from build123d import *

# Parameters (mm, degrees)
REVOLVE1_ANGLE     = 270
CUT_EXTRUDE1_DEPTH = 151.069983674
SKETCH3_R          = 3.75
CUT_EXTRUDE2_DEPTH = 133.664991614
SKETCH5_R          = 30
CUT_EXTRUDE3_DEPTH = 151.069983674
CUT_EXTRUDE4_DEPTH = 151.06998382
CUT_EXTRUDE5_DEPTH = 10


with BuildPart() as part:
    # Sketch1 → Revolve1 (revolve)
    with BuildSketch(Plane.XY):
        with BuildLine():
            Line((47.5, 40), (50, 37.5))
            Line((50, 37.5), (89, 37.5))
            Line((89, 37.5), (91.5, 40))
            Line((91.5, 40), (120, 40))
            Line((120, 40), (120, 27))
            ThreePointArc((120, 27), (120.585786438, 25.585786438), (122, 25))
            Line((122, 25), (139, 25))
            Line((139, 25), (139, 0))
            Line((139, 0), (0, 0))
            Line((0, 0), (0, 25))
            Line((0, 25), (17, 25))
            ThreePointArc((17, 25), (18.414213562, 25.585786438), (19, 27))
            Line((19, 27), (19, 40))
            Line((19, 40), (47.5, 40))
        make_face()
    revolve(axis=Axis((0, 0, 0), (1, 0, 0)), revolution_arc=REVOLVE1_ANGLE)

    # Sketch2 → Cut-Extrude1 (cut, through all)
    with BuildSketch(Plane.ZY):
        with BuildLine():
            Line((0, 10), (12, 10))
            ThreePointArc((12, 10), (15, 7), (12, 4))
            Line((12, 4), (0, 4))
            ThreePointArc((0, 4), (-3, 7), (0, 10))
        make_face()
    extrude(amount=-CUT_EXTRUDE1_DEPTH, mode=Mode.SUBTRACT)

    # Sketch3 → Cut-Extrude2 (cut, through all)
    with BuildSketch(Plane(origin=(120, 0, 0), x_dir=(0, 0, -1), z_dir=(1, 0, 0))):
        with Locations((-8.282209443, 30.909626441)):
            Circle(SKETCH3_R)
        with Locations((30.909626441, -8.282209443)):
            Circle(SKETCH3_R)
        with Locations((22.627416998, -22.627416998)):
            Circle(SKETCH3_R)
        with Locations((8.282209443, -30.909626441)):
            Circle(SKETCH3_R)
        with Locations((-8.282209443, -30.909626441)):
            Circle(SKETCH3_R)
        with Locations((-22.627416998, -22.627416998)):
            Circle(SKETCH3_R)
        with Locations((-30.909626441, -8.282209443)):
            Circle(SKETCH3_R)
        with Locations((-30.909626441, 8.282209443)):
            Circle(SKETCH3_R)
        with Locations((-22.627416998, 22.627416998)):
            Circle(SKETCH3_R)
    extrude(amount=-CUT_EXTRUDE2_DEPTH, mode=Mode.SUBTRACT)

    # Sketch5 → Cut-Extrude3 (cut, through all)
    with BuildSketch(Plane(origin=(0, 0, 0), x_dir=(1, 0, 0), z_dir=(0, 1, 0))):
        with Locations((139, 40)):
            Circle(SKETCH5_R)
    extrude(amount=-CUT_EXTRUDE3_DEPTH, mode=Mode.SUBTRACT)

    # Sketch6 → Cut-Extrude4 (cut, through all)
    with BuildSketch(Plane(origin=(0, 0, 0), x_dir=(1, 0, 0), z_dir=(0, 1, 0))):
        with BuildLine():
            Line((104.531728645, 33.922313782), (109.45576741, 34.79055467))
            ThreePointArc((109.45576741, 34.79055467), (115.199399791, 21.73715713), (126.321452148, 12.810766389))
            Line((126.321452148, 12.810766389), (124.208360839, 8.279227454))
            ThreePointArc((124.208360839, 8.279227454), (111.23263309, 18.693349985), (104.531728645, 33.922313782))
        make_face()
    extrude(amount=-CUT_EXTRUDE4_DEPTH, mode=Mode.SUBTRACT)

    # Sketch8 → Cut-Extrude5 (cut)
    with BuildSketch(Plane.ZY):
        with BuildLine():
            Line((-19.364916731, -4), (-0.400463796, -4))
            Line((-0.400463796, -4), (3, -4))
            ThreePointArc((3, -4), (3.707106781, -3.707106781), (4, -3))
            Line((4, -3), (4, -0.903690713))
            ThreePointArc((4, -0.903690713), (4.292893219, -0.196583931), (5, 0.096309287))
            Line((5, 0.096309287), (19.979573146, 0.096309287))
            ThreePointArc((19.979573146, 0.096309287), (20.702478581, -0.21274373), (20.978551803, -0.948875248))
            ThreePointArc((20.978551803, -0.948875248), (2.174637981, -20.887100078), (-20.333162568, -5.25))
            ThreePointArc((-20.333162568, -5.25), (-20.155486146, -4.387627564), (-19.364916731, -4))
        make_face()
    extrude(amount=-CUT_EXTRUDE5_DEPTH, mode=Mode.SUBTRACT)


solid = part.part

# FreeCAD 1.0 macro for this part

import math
import FreeCAD as App
import Part
import Sketcher

V = App.Vector
Q = App.Units.Quantity

doc = App.newDocument("Part")
body = doc.addObject("PartDesign::Body", "Body")

sketch1 = body.newObject("Sketcher::SketchObject", "Sketch")
sketch1.AttachmentSupport = (doc.getObject("XY_Plane"), [""])
sketch1.MapMode = "FlatFace"
sketch1.addGeometry(Part.LineSegment(V(50, 37.5, 0), V(47.5, 40, 0)), False)
sketch1.addGeometry(Part.LineSegment(V(47.5, 40, 0), V(19, 40, 0)), False)
sketch1.addGeometry(Part.LineSegment(V(19, 40, 0), V(19, 27, 0)), False)
sketch1.addGeometry(Part.ArcOfCircle(Part.Circle(V(17, 27, 0), V(0, 0, 1), 2), math.radians(-90), math.radians(0)), False)
sketch1.addGeometry(Part.LineSegment(V(17, 25, 0), V(0, 25, 0)), False)
sketch1.addGeometry(Part.LineSegment(V(0, 25, 0), V(0, 0, 0)), False)
sketch1.addGeometry(Part.LineSegment(V(0, 0, 0), V(139, 0, 0)), False)
sketch1.addGeometry(Part.LineSegment(V(139, 0, 0), V(139, 25, 0)), False)
sketch1.addGeometry(Part.LineSegment(V(139, 25, 0), V(122, 25, 0)), False)
sketch1.addGeometry(Part.ArcOfCircle(Part.Circle(V(122, 27, 0), V(0, 0, 1), 2), math.radians(-180), math.radians(-90)), False)
sketch1.addGeometry(Part.LineSegment(V(120, 27, 0), V(120, 40, 0)), False)
sketch1.addGeometry(Part.LineSegment(V(120, 40, 0), V(91.5, 40, 0)), False)
sketch1.addGeometry(Part.LineSegment(V(91.5, 40, 0), V(89, 37.5, 0)), False)
sketch1.addGeometry(Part.LineSegment(V(89, 37.5, 0), V(50, 37.5, 0)), False)
sketch1.addConstraint(Sketcher.Constraint("Coincident", 0, 2, 1, 1))
sketch1.addConstraint(Sketcher.Constraint("Coincident", 1, 2, 2, 1))
sketch1.addConstraint(Sketcher.Constraint("Tangent", 2, 2, 3, 2))
sketch1.addConstraint(Sketcher.Constraint("Tangent", 3, 1, 4, 1))
sketch1.addConstraint(Sketcher.Constraint("Coincident", 4, 2, 5, 1))
sketch1.addConstraint(Sketcher.Constraint("Coincident", 5, 2, 6, 1))
sketch1.addConstraint(Sketcher.Constraint("Coincident", 6, 2, 7, 1))
sketch1.addConstraint(Sketcher.Constraint("Coincident", 7, 2, 8, 1))
sketch1.addConstraint(Sketcher.Constraint("Tangent", 8, 2, 9, 2))
sketch1.addConstraint(Sketcher.Constraint("Tangent", 9, 1, 10, 1))
sketch1.addConstraint(Sketcher.Constraint("Coincident", 10, 2, 11, 1))
sketch1.addConstraint(Sketcher.Constraint("Coincident", 11, 2, 12, 1))
sketch1.addConstraint(Sketcher.Constraint("Coincident", 12, 2, 13, 1))
sketch1.addConstraint(Sketcher.Constraint("Coincident", 13, 2, 0, 1))
sketch1.addConstraint(Sketcher.Constraint("Horizontal", 1))
sketch1.addConstraint(Sketcher.Constraint("Vertical", 2))
sketch1.addConstraint(Sketcher.Constraint("Horizontal", 4))
sketch1.addConstraint(Sketcher.Constraint("Vertical", 5))
sketch1.addConstraint(Sketcher.Constraint("Horizontal", 6))
sketch1.addConstraint(Sketcher.Constraint("Vertical", 7))
sketch1.addConstraint(Sketcher.Constraint("Horizontal", 8))
sketch1.addConstraint(Sketcher.Constraint("Vertical", 10))
sketch1.addConstraint(Sketcher.Constraint("Horizontal", 11))
sketch1.addConstraint(Sketcher.Constraint("Horizontal", 13))
sketch1.addConstraint(Sketcher.Constraint("Coincident", 5, 2, -1, 1))
sketch1.addConstraint(Sketcher.Constraint("Equal", 3, 9))
sketch1.addConstraint(Sketcher.Constraint("Perpendicular", 0, 12))
sketch1.addConstraint(Sketcher.Constraint("Horizontal", 3, 3, 9, 3))
sketch1.addConstraint(Sketcher.Constraint("Horizontal", 1, 2, 10, 2))
sketch1.addConstraint(Sketcher.Constraint("Equal", 4, 8))
sketch1.addConstraint(Sketcher.Constraint("Equal", 1, 11))
sketch1.addConstraint(Sketcher.Constraint("Equal", 0, 12))
sketch1.addConstraint(Sketcher.Constraint("Radius", 3, Q("2 mm")))
sketch1.addConstraint(Sketcher.Constraint("DistanceX", 4, 2, 4, 1, Q("17 mm")))
sketch1.addConstraint(Sketcher.Constraint("DistanceX", 6, 1, 6, 2, Q("139 mm")))
sketch1.addConstraint(Sketcher.Constraint("DistanceX", 13, 2, 13, 1, Q("39 mm")))
sketch1.addConstraint(Sketcher.Constraint("DistanceY", 2, 2, 2, 1, Q("13 mm")))
sketch1.addConstraint(Sketcher.Constraint("DistanceY", 5, 2, 5, 1, Q("25 mm")))
sketch1.addConstraint(Sketcher.Constraint("DistanceX", 1, 2, 1, 1, Q("28.5 mm")))
revolution = body.newObject("PartDesign::Revolution", "Revolution")
revolution.Profile = sketch1
revolution.ReferenceAxis = (sketch1, ["H_Axis"])
revolution.Angle = 270

sketch2 = body.newObject("Sketcher::SketchObject", "Sketch001")
sketch2.AttachmentSupport = (doc.getObject("YZ_Plane"), [""])
sketch2.MapMode = "FlatFace"
sketch2.addGeometry(Part.LineSegment(V(10, 12, 0), V(10, 0, 0)), False)
sketch2.addGeometry(Part.ArcOfCircle(Part.Circle(V(7, 0, 0), V(0, 0, 1), 3), math.radians(180), math.radians(360)), False)
sketch2.addGeometry(Part.LineSegment(V(4, 0, 0), V(4, 12, 0)), False)
sketch2.addGeometry(Part.ArcOfCircle(Part.Circle(V(7, 12, 0), V(0, 0, 1), 3), math.radians(0), math.radians(180)), False)
sketch2.addConstraint(Sketcher.Constraint("Tangent", 0, 2, 1, 2))
sketch2.addConstraint(Sketcher.Constraint("Tangent", 1, 1, 2, 1))
sketch2.addConstraint(Sketcher.Constraint("Tangent", 2, 2, 3, 2))
sketch2.addConstraint(Sketcher.Constraint("Tangent", 3, 1, 0, 1))
sketch2.addConstraint(Sketcher.Constraint("Vertical", 0))
sketch2.addConstraint(Sketcher.Constraint("Vertical", 2))
sketch2.addConstraint(Sketcher.Constraint("PointOnObject", 1, 3, -1))
sketch2.addConstraint(Sketcher.Constraint("Radius", 1, Q("3 mm")))
sketch2.addConstraint(Sketcher.Constraint("DistanceY", 0, 2, 0, 1, Q("12 mm")))
sketch2.addConstraint(Sketcher.Constraint("DistanceX", -1, 1, 1, 3, Q("7 mm")))
pocket1 = body.newObject("PartDesign::Pocket", "Pocket")
pocket1.Profile = sketch2
pocket1.Type = "ThroughAll"
pocket1.Reversed = True

sketch3 = body.newObject("Sketcher::SketchObject", "Sketch002")
sketch3.AttachmentSupport = (doc.getObject("YZ_Plane"), [""])
sketch3.MapMode = "FlatFace"
sketch3.AttachmentOffset = App.Placement(V(0, 0, 120), App.Rotation())
sketch3.addGeometry(Part.Circle(V(30.9, 8.3, 0), V(0, 0, 1), 3.8), False)
sketch3.addGeometry(Part.Circle(V(-8.3, -30.9, 0), V(0, 0, 1), 3.8), False)
sketch3.addGeometry(Part.Circle(V(-22.6, -22.6, 0), V(0, 0, 1), 3.8), False)
sketch3.addGeometry(Part.Circle(V(-30.9, -8.3, 0), V(0, 0, 1), 3.8), False)
sketch3.addGeometry(Part.Circle(V(-30.9, 8.3, 0), V(0, 0, 1), 3.8), False)
sketch3.addGeometry(Part.Circle(V(-22.6, 22.6, 0), V(0, 0, 1), 3.8), False)
sketch3.addGeometry(Part.Circle(V(-8.3, 30.9, 0), V(0, 0, 1), 3.8), False)
sketch3.addGeometry(Part.Circle(V(8.3, 30.9, 0), V(0, 0, 1), 3.8), False)
sketch3.addGeometry(Part.Circle(V(22.6, 22.6, 0), V(0, 0, 1), 3.8), False)
sketch3.addConstraint(Sketcher.Constraint("Equal", 0, 1))
sketch3.addConstraint(Sketcher.Constraint("Equal", 1, 2))
sketch3.addConstraint(Sketcher.Constraint("Equal", 2, 3))
sketch3.addConstraint(Sketcher.Constraint("Equal", 3, 4))
sketch3.addConstraint(Sketcher.Constraint("Equal", 4, 5))
sketch3.addConstraint(Sketcher.Constraint("Equal", 5, 6))
sketch3.addConstraint(Sketcher.Constraint("Equal", 6, 7))
sketch3.addConstraint(Sketcher.Constraint("Equal", 7, 8))
sketch3.addConstraint(Sketcher.Constraint("Symmetric", 0, 3, 3, 3, -1, 1))
sketch3.addConstraint(Sketcher.Constraint("Symmetric", 1, 3, 7, 3, -1, 1))
sketch3.addConstraint(Sketcher.Constraint("Symmetric", 2, 3, 8, 3, -1, 1))
sketch3.addConstraint(Sketcher.Constraint("Symmetric", 0, 3, 4, 3, -2))
sketch3.addConstraint(Sketcher.Constraint("Symmetric", 6, 3, 7, 3, -2))
sketch3.addConstraint(Sketcher.Constraint("Symmetric", 5, 3, 8, 3, -2))
sketch3.addConstraint(Sketcher.Constraint("Diameter", 0, Q("7.5 mm")))
sketch3.addConstraint(Sketcher.Constraint("DistanceY", -1, 1, 0, 3, Q("8.282209 mm")))
sketch3.addConstraint(Sketcher.Constraint("DistanceX", 1, 3, -1, 1, Q("8.282209 mm")))
sketch3.addConstraint(Sketcher.Constraint("DistanceY", 1, 3, 2, 3, Q("8.282209 mm")))
sketch3.addConstraint(Sketcher.Constraint("DistanceX", 3, 3, 2, 3, Q("8.282209 mm")))
sketch3.addConstraint(Sketcher.Constraint("DistanceX", -1, 1, 0, 3, Q("30.909626 mm")))
sketch3.addConstraint(Sketcher.Constraint("DistanceY", 1, 3, -1, 1, Q("30.909626 mm")))
pocket2 = body.newObject("PartDesign::Pocket", "Pocket001")
pocket2.Profile = sketch3
pocket2.Type = "ThroughAll"

sketch4 = body.newObject("Sketcher::SketchObject", "Sketch003")
sketch4.AttachmentSupport = (doc.getObject("XZ_Plane"), [""])
sketch4.MapMode = "FlatFace"
sketch4.addGeometry(Part.Circle(V(139, -40, 0), V(0, 0, 1), 30), False)
sketch4.addConstraint(Sketcher.Constraint("Diameter", 0, Q("60 mm")))
sketch4.addConstraint(Sketcher.Constraint("DistanceX", -1, 1, 0, 3, Q("139 mm")))
sketch4.addConstraint(Sketcher.Constraint("DistanceY", 0, 3, -1, 1, Q("40 mm")))
pocket3 = body.newObject("PartDesign::Pocket", "Pocket002")
pocket3.Profile = sketch4
pocket3.Type = "ThroughAll"
pocket3.Reversed = True

sketch5 = body.newObject("Sketcher::SketchObject", "Sketch004")
sketch5.AttachmentSupport = (doc.getObject("XZ_Plane"), [""])
sketch5.MapMode = "FlatFace"
sketch5.addGeometry(Part.LineSegment(V(109.5, -34.8, 0), V(104.5, -33.9, 0)), False)
sketch5.addGeometry(Part.ArcOfCircle(Part.Circle(V(139, -40, 0), V(0, 0, 1), 35), math.radians(115), math.radians(170)), False)
sketch5.addGeometry(Part.LineSegment(V(124.2, -8.3, 0), V(126.3, -12.8, 0)), False)
sketch5.addGeometry(Part.ArcOfCircle(Part.Circle(V(139, -40, 0), V(0, 0, 1), 30), math.radians(115), math.radians(170)), False)
sketch5.addConstraint(Sketcher.Constraint("Coincident", 0, 2, 1, 2))
sketch5.addConstraint(Sketcher.Constraint("Coincident", 1, 1, 2, 1))
sketch5.addConstraint(Sketcher.Constraint("Coincident", 2, 2, 3, 1))
sketch5.addConstraint(Sketcher.Constraint("Coincident", 3, 2, 0, 1))
sketch5.addConstraint(Sketcher.Constraint("Coincident", 3, 3, 1, 3))
sketch5.addConstraint(Sketcher.Constraint("Radius", 1, Q("35 mm")))
sketch5.addConstraint(Sketcher.Constraint("Radius", 3, Q("30 mm")))
sketch5.addConstraint(Sketcher.Constraint("Angle", 0, Q("170 deg")))
sketch5.addConstraint(Sketcher.Constraint("Angle", 2, Q("-65 deg")))
sketch5.addConstraint(Sketcher.Constraint("DistanceX", -1, 1, 1, 3, Q("139 mm")))
sketch5.addConstraint(Sketcher.Constraint("DistanceY", 1, 3, -1, 1, Q("40 mm")))
sketch5.addConstraint(Sketcher.Constraint("DistanceX", -1, 1, 0, 2, Q("104.531729 mm")))
sketch5.addConstraint(Sketcher.Constraint("DistanceX", -1, 1, 1, 1, Q("124.208361 mm")))
pocket4 = body.newObject("PartDesign::Pocket", "Pocket003")
pocket4.Profile = sketch5
pocket4.Type = "ThroughAll"
pocket4.Reversed = True

sketch6 = body.newObject("Sketcher::SketchObject", "Sketch005")
sketch6.AttachmentSupport = (doc.getObject("YZ_Plane"), [""])
sketch6.MapMode = "FlatFace"
sketch6.addGeometry(Part.LineSegment(V(-4, 3, 0), V(-4, -19.4, 0)), False)
sketch6.addGeometry(Part.ArcOfCircle(Part.Circle(V(-5, -19.4, 0), V(0, 0, 1), 1), math.radians(-104), math.radians(0)), False)
sketch6.addGeometry(Part.ArcOfCircle(Part.Circle(V(0, 0, 0), V(0, 0, 1), 21), math.radians(93), math.radians(256)), False)
sketch6.addGeometry(Part.ArcOfCircle(Part.Circle(V(-0.9, 20, 0), V(0, 0, 1), 1), math.radians(0), math.radians(93)), False)
sketch6.addGeometry(Part.LineSegment(V(0.1, 20, 0), V(0.1, 5, 0)), False)
sketch6.addGeometry(Part.ArcOfCircle(Part.Circle(V(-0.9, 5, 0), V(0, 0, 1), 1), math.radians(-90), math.radians(0)), False)
sketch6.addGeometry(Part.LineSegment(V(-0.9, 4, 0), V(-3, 4, 0)), False)
sketch6.addGeometry(Part.ArcOfCircle(Part.Circle(V(-3, 3, 0), V(0, 0, 1), 1), math.radians(90), math.radians(180)), False)
sketch6.addConstraint(Sketcher.Constraint("Tangent", 0, 2, 1, 2))
sketch6.addConstraint(Sketcher.Constraint("Tangent", 1, 1, 2, 2))
sketch6.addConstraint(Sketcher.Constraint("Tangent", 2, 1, 3, 2))
sketch6.addConstraint(Sketcher.Constraint("Tangent", 3, 1, 4, 1))
sketch6.addConstraint(Sketcher.Constraint("Tangent", 4, 2, 5, 2))
sketch6.addConstraint(Sketcher.Constraint("Tangent", 5, 1, 6, 1))
sketch6.addConstraint(Sketcher.Constraint("Tangent", 6, 2, 7, 1))
sketch6.addConstraint(Sketcher.Constraint("Tangent", 7, 2, 0, 1))
sketch6.addConstraint(Sketcher.Constraint("Vertical", 0))
sketch6.addConstraint(Sketcher.Constraint("Vertical", 4))
sketch6.addConstraint(Sketcher.Constraint("Horizontal", 6))
sketch6.addConstraint(Sketcher.Constraint("Coincident", 2, 3, -1, 1))
sketch6.addConstraint(Sketcher.Constraint("Equal", 1, 3))
sketch6.addConstraint(Sketcher.Constraint("Equal", 3, 5))
sketch6.addConstraint(Sketcher.Constraint("Equal", 5, 7))
sketch6.addConstraint(Sketcher.Constraint("Radius", 1, Q("1 mm")))
sketch6.addConstraint(Sketcher.Constraint("Radius", 2, Q("21 mm")))
sketch6.addConstraint(Sketcher.Constraint("DistanceX", 1, 3, -1, 1, Q("5 mm")))
sketch6.addConstraint(Sketcher.Constraint("DistanceY", -1, 1, 5, 3, Q("5 mm")))
sketch6.addConstraint(Sketcher.Constraint("DistanceX", 6, 2, 6, 1, Q("2.096309 mm")))
pocket5 = body.newObject("PartDesign::Pocket", "Pocket004")
pocket5.Profile = sketch6
pocket5.Length = 10
pocket5.Reversed = True

doc.recompute()
